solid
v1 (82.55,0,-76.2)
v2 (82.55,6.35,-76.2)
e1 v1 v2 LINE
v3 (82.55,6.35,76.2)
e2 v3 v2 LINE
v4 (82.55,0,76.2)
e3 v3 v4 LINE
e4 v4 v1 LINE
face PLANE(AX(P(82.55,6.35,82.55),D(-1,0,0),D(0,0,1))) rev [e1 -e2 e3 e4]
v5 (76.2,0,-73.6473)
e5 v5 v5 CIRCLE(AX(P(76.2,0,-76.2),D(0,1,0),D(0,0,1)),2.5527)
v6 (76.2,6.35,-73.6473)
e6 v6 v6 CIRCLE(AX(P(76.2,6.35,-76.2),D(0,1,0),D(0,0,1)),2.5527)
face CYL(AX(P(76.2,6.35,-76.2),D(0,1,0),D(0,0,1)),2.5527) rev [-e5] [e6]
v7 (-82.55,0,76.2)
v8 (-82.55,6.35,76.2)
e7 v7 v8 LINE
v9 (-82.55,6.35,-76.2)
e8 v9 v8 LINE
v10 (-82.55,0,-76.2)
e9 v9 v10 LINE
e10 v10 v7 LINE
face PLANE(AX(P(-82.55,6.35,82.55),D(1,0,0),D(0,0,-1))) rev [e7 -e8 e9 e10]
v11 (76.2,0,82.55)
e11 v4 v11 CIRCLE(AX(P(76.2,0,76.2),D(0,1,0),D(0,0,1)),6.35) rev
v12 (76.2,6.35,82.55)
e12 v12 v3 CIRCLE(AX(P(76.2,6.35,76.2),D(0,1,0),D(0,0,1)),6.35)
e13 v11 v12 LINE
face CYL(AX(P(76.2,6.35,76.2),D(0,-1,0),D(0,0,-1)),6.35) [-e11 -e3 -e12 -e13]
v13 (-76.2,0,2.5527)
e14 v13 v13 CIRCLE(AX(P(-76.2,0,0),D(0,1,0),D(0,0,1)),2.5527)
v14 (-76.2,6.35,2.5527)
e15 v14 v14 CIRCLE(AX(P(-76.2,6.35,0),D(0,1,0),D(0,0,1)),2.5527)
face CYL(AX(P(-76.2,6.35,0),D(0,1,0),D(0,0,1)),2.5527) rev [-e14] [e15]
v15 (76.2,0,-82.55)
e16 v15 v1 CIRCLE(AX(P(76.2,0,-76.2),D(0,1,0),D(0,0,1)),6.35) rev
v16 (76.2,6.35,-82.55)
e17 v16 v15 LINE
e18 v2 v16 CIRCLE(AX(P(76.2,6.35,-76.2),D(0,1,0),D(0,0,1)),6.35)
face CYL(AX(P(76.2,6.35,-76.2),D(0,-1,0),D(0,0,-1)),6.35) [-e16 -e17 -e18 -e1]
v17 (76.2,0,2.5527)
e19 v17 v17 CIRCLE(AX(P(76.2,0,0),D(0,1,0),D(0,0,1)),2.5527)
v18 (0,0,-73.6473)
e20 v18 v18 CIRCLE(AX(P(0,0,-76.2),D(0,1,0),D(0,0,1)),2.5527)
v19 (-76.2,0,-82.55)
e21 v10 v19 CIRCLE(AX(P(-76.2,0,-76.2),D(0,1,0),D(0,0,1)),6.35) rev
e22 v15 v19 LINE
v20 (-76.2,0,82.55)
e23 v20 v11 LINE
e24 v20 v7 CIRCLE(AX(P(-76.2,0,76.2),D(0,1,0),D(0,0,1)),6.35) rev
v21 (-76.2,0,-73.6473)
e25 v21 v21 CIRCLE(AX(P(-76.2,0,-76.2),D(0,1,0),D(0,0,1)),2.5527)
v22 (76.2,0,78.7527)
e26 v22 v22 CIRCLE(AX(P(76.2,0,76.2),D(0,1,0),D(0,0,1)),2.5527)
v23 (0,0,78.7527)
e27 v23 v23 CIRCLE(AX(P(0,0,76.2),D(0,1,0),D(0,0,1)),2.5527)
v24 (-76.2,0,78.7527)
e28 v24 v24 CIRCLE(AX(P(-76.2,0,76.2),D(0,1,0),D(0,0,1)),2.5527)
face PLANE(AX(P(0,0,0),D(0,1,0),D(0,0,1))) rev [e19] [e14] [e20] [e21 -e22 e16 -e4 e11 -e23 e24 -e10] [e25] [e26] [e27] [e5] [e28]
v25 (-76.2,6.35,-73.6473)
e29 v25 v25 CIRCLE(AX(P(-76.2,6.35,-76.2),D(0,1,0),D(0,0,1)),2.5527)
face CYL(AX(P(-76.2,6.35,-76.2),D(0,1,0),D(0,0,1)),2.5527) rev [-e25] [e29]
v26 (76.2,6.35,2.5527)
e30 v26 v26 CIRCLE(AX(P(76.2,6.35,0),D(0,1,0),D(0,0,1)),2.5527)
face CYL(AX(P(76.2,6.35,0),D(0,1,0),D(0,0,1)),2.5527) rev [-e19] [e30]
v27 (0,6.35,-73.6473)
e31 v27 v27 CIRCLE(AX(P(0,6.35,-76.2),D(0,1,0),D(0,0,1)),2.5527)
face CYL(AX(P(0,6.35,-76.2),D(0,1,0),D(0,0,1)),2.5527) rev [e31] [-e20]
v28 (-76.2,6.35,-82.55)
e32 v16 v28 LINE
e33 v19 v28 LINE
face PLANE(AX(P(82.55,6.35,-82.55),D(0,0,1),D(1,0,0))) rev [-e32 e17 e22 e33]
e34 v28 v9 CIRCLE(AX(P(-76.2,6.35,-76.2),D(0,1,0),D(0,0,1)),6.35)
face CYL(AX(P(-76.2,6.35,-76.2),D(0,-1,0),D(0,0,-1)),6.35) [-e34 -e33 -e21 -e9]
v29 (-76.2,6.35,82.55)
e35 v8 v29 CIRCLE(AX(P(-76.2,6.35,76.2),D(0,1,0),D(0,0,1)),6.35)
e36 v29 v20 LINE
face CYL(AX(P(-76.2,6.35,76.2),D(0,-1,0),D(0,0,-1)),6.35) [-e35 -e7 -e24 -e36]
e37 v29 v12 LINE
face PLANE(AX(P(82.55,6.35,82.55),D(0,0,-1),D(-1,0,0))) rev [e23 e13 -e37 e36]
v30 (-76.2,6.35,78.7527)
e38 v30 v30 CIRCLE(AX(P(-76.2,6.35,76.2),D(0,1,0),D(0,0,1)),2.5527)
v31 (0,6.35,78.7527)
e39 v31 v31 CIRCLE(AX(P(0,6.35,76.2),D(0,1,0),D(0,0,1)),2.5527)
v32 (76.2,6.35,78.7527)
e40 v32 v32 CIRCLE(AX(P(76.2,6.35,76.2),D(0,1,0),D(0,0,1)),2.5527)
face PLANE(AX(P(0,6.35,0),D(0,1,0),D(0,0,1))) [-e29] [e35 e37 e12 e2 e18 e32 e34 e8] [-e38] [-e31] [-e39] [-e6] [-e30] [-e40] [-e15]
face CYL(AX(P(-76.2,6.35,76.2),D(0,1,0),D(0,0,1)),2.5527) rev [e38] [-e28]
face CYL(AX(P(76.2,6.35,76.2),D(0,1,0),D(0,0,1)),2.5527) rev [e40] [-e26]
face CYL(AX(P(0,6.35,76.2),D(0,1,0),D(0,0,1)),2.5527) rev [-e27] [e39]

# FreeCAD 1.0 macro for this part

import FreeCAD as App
import Part
import Sketcher

V = App.Vector
Q = App.Units.Quantity


def edges_at(feature, points):
    """Names of the edges that pass closest to the given points."""
    edges = feature.Shape.Edges
    near = lambda p: min(range(len(edges)), key=lambda i: edges[i].distToShape(Part.Vertex(*p))[0])
    return sorted({f"Edge{near(p) + 1}" for p in points})

doc = App.newDocument("Part")
body = doc.addObject("PartDesign::Body", "Body")

sketch1 = doc.addObject("Sketcher::SketchObject", "Sketch")
body.addObject(sketch1)
sketch1.AttachmentSupport = (doc.XZ_Plane, [""])
sketch1.MapMode = "FlatFace"
sketch1.addGeometry(Part.LineSegment(V(-82.55, -82.55, 0), V(-82.55, 82.55, 0)), False)
sketch1.addGeometry(Part.LineSegment(V(-82.55, 82.55, 0), V(82.55, 82.55, 0)), False)
sketch1.addGeometry(Part.LineSegment(V(82.55, 82.55, 0), V(82.55, -82.55, 0)), False)
sketch1.addGeometry(Part.LineSegment(V(82.55, -82.55, 0), V(-82.55, -82.55, 0)), False)
sketch1.addConstraint(Sketcher.Constraint("Coincident", 0, 2, 1, 1))
sketch1.addConstraint(Sketcher.Constraint("Coincident", 1, 2, 2, 1))
sketch1.addConstraint(Sketcher.Constraint("Coincident", 2, 2, 3, 1))
sketch1.addConstraint(Sketcher.Constraint("Coincident", 3, 2, 0, 1))
sketch1.addConstraint(Sketcher.Constraint("Vertical", 0))
sketch1.addConstraint(Sketcher.Constraint("Horizontal", 1))
sketch1.addConstraint(Sketcher.Constraint("Vertical", 2))
sketch1.addConstraint(Sketcher.Constraint("Horizontal", 3))
sketch1.addConstraint(Sketcher.Constraint("Symmetric", 0, 2, 2, 2, -1, 1))
sketch1.addConstraint(Sketcher.Constraint("Equal", 3, 0))
sketch1.addConstraint(Sketcher.Constraint("DistanceX", 1, 1, 1, 2, Q("6.5 in")))
pad1 = doc.addObject("PartDesign::Pad", "Pad")
body.addObject(pad1)
pad1.Profile = sketch1
pad1.Length = Q("0.25 in")
pad1.Reversed = True
doc.recompute()

fillet = doc.addObject("PartDesign::Fillet", "Fillet")
body.addObject(fillet)
fillet.Base = (pad1, edges_at(pad1, [
    (-82.55, 3.175, -82.55),
    (82.55, 3.175, -82.55),
    (82.55, 3.175, 82.55),
    (-82.55, 3.175, 82.55),
]))
fillet.Radius = Q("0.25 in")

sketch2 = doc.addObject("Sketcher::SketchObject", "Sketch001")
body.addObject(sketch2)
sketch2.AttachmentSupport = (doc.XZ_Plane, [""])
sketch2.MapMode = "FlatFace"
sketch2.AttachmentOffset = App.Placement(V(0, 0, -0.25 * 25.4), App.Rotation())
sketch2.addGeometry(Part.Circle(V(-76.2, 76.2, 0), V(0, 0, 1), 2.5527), False)
sketch2.addGeometry(Part.Circle(V(-76.2, -76.2, 0), V(0, 0, 1), 2.5527), False)
sketch2.addGeometry(Part.Circle(V(76.2, -76.2, 0), V(0, 0, 1), 2.5527), False)
sketch2.addGeometry(Part.Circle(V(76.2, 76.2, 0), V(0, 0, 1), 2.5527), False)
sketch2.addGeometry(Part.Circle(V(0, -76.2, 0), V(0, 0, 1), 2.5527), False)
sketch2.addGeometry(Part.Circle(V(0, 76.2, 0), V(0, 0, 1), 2.5527), False)
sketch2.addGeometry(Part.Circle(V(-76.2, 0, 0), V(0, 0, 1), 2.5527), False)
sketch2.addGeometry(Part.Circle(V(76.2, 0, 0), V(0, 0, 1), 2.5527), False)
sketch2.addConstraint(Sketcher.Constraint("Equal", 0, 1))
sketch2.addConstraint(Sketcher.Constraint("Equal", 1, 2))
sketch2.addConstraint(Sketcher.Constraint("Equal", 2, 3))
sketch2.addConstraint(Sketcher.Constraint("Equal", 3, 4))
sketch2.addConstraint(Sketcher.Constraint("Equal", 4, 5))
sketch2.addConstraint(Sketcher.Constraint("Equal", 5, 6))
sketch2.addConstraint(Sketcher.Constraint("Equal", 6, 7))
sketch2.addConstraint(Sketcher.Constraint("Symmetric", 0, 3, 2, 3, -1, 1))
sketch2.addConstraint(Sketcher.Constraint("Symmetric", 1, 3, 3, 3, -1, 1))
sketch2.addConstraint(Sketcher.Constraint("Symmetric", 4, 3, 5, 3, -1, 1))
sketch2.addConstraint(Sketcher.Constraint("Symmetric", 6, 3, 7, 3, -1, 1))
sketch2.addConstraint(Sketcher.Constraint("Symmetric", 1, 3, 2, 3, -2))
sketch2.addConstraint(Sketcher.Constraint("PointOnObject", 4, 3, -2))
sketch2.addConstraint(Sketcher.Constraint("PointOnObject", 6, 3, -1))
sketch2.addConstraint(Sketcher.Constraint("Horizontal", 2, 3, 4, 3))
sketch2.addConstraint(Sketcher.Constraint("Vertical", 1, 3, 6, 3))
sketch2.addConstraint(Sketcher.Constraint("Diameter", 0, Q("0.201 in")))
sketch2.addConstraint(Sketcher.Constraint("DistanceX", 0, 3, -1, 1, Q("3 in")))
sketch2.addConstraint(Sketcher.Constraint("DistanceY", -1, 1, 0, 3, Q("3 in")))
doc.recompute()
hole = doc.addObject("PartDesign::Hole", "Hole")
body.addObject(hole)
hole.Profile = sketch2
hole.ThreadType = "None"
hole.Diameter = Q("0.201 in")
hole.DepthType = "ThroughAll"
hole.Reversed = True

doc.recompute()
